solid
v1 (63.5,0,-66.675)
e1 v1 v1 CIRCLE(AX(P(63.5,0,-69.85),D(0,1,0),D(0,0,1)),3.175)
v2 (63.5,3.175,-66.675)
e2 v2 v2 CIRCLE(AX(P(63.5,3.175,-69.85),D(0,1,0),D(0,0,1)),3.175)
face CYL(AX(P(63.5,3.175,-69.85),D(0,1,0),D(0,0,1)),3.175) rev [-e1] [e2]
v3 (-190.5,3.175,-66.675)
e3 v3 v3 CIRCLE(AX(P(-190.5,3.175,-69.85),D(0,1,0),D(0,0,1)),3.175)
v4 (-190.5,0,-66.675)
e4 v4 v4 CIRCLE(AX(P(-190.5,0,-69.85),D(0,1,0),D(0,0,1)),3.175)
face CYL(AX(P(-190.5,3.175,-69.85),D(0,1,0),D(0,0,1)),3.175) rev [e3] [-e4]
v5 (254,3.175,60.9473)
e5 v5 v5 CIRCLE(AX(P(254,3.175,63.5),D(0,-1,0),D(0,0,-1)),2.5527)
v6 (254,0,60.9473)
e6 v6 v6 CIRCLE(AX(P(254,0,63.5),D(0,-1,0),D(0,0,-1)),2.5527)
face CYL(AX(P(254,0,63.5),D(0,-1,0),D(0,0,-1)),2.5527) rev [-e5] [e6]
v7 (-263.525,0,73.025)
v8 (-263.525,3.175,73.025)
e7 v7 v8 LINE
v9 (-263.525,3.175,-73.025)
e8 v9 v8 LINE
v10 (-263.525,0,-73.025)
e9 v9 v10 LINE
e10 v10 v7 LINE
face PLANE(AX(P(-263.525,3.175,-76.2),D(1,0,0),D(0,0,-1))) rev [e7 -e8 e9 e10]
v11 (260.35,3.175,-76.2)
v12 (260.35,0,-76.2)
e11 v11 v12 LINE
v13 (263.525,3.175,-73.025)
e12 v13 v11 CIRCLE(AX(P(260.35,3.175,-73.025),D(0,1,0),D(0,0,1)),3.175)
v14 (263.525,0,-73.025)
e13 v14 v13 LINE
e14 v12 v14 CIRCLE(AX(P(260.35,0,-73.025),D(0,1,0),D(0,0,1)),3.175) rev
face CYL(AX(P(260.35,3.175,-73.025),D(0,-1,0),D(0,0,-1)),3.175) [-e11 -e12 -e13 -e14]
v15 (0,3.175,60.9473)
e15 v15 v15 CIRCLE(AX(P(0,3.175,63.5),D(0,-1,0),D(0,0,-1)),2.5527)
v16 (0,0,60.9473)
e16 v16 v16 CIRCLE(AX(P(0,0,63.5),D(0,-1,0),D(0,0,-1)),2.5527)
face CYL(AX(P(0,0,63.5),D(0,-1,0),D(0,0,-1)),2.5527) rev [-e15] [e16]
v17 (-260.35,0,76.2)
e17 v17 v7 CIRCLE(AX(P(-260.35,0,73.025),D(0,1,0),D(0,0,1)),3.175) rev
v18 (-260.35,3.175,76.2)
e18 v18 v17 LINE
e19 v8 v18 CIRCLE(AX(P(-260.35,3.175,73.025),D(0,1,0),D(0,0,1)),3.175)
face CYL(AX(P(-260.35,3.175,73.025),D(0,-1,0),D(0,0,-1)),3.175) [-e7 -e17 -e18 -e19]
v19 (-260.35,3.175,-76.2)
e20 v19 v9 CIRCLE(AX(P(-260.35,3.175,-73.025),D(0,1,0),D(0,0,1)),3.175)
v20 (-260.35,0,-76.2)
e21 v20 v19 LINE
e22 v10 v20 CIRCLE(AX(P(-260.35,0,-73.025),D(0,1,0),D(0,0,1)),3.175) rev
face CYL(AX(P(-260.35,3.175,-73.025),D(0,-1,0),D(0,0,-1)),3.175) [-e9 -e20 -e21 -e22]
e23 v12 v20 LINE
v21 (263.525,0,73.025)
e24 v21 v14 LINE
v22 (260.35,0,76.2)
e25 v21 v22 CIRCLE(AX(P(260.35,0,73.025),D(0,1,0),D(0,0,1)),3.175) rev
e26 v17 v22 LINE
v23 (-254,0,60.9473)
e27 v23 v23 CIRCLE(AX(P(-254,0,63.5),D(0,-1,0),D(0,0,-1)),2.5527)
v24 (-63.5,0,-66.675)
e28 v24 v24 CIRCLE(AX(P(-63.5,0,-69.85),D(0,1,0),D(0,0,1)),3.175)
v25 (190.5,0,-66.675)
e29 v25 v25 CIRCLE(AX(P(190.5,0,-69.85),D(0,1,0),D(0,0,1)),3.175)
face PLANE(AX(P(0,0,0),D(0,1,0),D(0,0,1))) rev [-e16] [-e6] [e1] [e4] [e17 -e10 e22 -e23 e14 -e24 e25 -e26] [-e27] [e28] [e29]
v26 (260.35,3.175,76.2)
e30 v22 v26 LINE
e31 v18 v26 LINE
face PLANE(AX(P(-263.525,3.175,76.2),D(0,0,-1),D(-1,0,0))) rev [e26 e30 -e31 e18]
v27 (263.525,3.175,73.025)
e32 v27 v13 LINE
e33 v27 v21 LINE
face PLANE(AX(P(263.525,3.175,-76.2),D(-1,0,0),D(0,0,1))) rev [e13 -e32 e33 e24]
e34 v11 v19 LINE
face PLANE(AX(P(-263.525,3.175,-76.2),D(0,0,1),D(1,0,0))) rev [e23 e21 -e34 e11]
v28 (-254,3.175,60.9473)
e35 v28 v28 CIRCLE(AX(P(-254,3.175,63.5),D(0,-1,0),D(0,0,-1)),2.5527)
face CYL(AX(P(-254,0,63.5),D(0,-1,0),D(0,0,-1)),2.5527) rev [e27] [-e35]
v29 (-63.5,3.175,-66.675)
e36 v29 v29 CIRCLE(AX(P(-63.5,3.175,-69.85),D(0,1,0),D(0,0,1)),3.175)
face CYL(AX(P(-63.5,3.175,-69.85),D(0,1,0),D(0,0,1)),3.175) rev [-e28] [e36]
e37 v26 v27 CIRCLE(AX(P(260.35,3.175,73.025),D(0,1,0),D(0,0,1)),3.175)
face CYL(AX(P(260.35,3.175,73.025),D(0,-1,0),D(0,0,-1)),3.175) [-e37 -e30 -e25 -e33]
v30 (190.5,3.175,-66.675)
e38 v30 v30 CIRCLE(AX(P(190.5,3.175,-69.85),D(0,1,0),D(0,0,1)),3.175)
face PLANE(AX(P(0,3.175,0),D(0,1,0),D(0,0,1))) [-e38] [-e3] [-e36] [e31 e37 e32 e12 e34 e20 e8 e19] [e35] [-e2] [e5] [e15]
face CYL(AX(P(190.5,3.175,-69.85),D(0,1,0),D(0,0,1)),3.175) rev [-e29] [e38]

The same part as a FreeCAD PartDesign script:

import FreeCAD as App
import Part
import Sketcher
Q = App.Units.Quantity


def edges_at(feature, points):
    """Names of the edges that pass closest to the given points."""
    edges = feature.Shape.Edges
    near = lambda p: min(range(len(edges)), key=lambda i: edges[i].distToShape(Part.Vertex(*p))[0])
    return sorted({f"Edge{near(p) + 1}" for p in points})

doc = App.newDocument("Part")
body = doc.addObject("PartDesign::Body", "Body")

sketch1 = body.newObject("Sketcher::SketchObject", "Sketch")
sketch1.AttachmentSupport = (doc.getObject("XZ_Plane"), [""])
sketch1.MapMode = "FlatFace"
sketch1.addGeometry([
    Part.LineSegment(App.Vector(-263.525, -76.2, 0), App.Vector(-263.525, 76.2, 0)),
    Part.LineSegment(App.Vector(-263.525, 76.2, 0), App.Vector(263.525, 76.2, 0)),
    Part.LineSegment(App.Vector(263.525, 76.2, 0), App.Vector(263.525, -76.2, 0)),
    Part.LineSegment(App.Vector(263.525, -76.2, 0), App.Vector(-263.525, -76.2, 0)),
], False)
sketch1.addConstraint([
    Sketcher.Constraint("Coincident", 0, 2, 1, 1),
    Sketcher.Constraint("Coincident", 1, 2, 2, 1),
    Sketcher.Constraint("Coincident", 2, 2, 3, 1),
    Sketcher.Constraint("Coincident", 3, 2, 0, 1),
    Sketcher.Constraint("Vertical", 0),
    Sketcher.Constraint("Horizontal", 1),
    Sketcher.Constraint("Vertical", 2),
    Sketcher.Constraint("Horizontal", 3),
    Sketcher.Constraint("Symmetric", 0, 2, 2, 2, -1, 1),
    Sketcher.Constraint("DistanceY", 0, 1, 0, 2, Q("6 in")),
    Sketcher.Constraint("DistanceX", 1, 1, 1, 2, Q("20.75 in")),
])
pad1 = body.newObject("PartDesign::Pad", "Pad")
pad1.Profile = sketch1
pad1.Length = Q("0.125 in")
pad1.Reversed = True

sketch2 = body.newObject("Sketcher::SketchObject", "Sketch001")
sketch2.AttachmentSupport = (doc.getObject("XZ_Plane"), [""])
sketch2.MapMode = "FlatFace"
sketch2.addGeometry([
    Part.Circle(App.Vector(254, 63.5, 0), App.Vector(0, 0, 1), 2.5527),
    Part.Circle(App.Vector(0, 63.5, 0), App.Vector(0, 0, 1), 2.5527),
    Part.Circle(App.Vector(-254, 63.5, 0), App.Vector(0, 0, 1), 2.5527),
], False)
sketch2.addConstraint([
    Sketcher.Constraint("Equal", 0, 1),
    Sketcher.Constraint("Equal", 1, 2),
    Sketcher.Constraint("Symmetric", 0, 3, 2, 3, -2),
    Sketcher.Constraint("PointOnObject", 1, 3, -2),
    Sketcher.Constraint("Horizontal", 0, 3, 1, 3),
    Sketcher.Constraint("Diameter", 0, Q("0.201 in")),
    Sketcher.Constraint("DistanceX", -1, 1, 0, 3, Q("10 in")),
    Sketcher.Constraint("DistanceY", -1, 1, 0, 3, Q("2.5 in")),
])
doc.recompute()
hole = body.newObject("PartDesign::Hole", "Hole")
hole.Profile = sketch2
hole.ThreadType = "None"
hole.Diameter = Q("0.201 in")
hole.DepthType = "ThroughAll"
doc.recompute()

fillet = body.newObject("PartDesign::Fillet", "Fillet")
fillet.Base = (hole, edges_at(hole, [
    (263.525, 1.587, 76.2),
    (-263.525, 1.587, 76.2),
    (-263.525, 1.587, -76.2),
    (263.525, 1.587, -76.2),
]))
fillet.Radius = Q("0.125 in")

sketch3 = body.newObject("Sketcher::SketchObject", "Sketch002")
sketch3.AttachmentSupport = (doc.getObject("XZ_Plane"), [""])
sketch3.MapMode = "FlatFace"
sketch3.AttachmentOffset = App.Placement(App.Vector(0, 0, -0.125 * 25.4), App.Rotation())
sketch3.addGeometry([
    Part.Circle(App.Vector(190.5, -69.85, 0), App.Vector(0, 0, 1), 3.175),
    Part.Circle(App.Vector(63.5, -69.85, 0), App.Vector(0, 0, 1), 3.175),
    Part.Circle(App.Vector(-63.5, -69.85, 0), App.Vector(0, 0, 1), 3.175),
    Part.Circle(App.Vector(-190.5, -69.85, 0), App.Vector(0, 0, 1), 3.175),
], False)
sketch3.addConstraint([
    Sketcher.Constraint("Equal", 0, 1),
    Sketcher.Constraint("Equal", 1, 2),
    Sketcher.Constraint("Equal", 2, 3),
    Sketcher.Constraint("Symmetric", 1, 3, 2, 3, -2),
    Sketcher.Constraint("Symmetric", 0, 3, 3, 3, -2),
    Sketcher.Constraint("Horizontal", 0, 3, 1, 3),
    Sketcher.Constraint("Diameter", 0, Q("0.25 in")),
    Sketcher.Constraint("DistanceX", 1, 3, 0, 3, Q("5 in")),
    Sketcher.Constraint("DistanceX", 2, 3, 1, 3, Q("5 in")),
    Sketcher.Constraint("DistanceY", 0, 3, -1, 1, Q("2.75 in")),
])
doc.recompute()
hole2 = body.newObject("PartDesign::Hole", "Hole001")
hole2.Profile = sketch3
hole2.ThreadType = "None"
hole2.Diameter = Q("0.25 in")
hole2.DepthType = "ThroughAll"
hole2.Reversed = True

doc.recompute()
